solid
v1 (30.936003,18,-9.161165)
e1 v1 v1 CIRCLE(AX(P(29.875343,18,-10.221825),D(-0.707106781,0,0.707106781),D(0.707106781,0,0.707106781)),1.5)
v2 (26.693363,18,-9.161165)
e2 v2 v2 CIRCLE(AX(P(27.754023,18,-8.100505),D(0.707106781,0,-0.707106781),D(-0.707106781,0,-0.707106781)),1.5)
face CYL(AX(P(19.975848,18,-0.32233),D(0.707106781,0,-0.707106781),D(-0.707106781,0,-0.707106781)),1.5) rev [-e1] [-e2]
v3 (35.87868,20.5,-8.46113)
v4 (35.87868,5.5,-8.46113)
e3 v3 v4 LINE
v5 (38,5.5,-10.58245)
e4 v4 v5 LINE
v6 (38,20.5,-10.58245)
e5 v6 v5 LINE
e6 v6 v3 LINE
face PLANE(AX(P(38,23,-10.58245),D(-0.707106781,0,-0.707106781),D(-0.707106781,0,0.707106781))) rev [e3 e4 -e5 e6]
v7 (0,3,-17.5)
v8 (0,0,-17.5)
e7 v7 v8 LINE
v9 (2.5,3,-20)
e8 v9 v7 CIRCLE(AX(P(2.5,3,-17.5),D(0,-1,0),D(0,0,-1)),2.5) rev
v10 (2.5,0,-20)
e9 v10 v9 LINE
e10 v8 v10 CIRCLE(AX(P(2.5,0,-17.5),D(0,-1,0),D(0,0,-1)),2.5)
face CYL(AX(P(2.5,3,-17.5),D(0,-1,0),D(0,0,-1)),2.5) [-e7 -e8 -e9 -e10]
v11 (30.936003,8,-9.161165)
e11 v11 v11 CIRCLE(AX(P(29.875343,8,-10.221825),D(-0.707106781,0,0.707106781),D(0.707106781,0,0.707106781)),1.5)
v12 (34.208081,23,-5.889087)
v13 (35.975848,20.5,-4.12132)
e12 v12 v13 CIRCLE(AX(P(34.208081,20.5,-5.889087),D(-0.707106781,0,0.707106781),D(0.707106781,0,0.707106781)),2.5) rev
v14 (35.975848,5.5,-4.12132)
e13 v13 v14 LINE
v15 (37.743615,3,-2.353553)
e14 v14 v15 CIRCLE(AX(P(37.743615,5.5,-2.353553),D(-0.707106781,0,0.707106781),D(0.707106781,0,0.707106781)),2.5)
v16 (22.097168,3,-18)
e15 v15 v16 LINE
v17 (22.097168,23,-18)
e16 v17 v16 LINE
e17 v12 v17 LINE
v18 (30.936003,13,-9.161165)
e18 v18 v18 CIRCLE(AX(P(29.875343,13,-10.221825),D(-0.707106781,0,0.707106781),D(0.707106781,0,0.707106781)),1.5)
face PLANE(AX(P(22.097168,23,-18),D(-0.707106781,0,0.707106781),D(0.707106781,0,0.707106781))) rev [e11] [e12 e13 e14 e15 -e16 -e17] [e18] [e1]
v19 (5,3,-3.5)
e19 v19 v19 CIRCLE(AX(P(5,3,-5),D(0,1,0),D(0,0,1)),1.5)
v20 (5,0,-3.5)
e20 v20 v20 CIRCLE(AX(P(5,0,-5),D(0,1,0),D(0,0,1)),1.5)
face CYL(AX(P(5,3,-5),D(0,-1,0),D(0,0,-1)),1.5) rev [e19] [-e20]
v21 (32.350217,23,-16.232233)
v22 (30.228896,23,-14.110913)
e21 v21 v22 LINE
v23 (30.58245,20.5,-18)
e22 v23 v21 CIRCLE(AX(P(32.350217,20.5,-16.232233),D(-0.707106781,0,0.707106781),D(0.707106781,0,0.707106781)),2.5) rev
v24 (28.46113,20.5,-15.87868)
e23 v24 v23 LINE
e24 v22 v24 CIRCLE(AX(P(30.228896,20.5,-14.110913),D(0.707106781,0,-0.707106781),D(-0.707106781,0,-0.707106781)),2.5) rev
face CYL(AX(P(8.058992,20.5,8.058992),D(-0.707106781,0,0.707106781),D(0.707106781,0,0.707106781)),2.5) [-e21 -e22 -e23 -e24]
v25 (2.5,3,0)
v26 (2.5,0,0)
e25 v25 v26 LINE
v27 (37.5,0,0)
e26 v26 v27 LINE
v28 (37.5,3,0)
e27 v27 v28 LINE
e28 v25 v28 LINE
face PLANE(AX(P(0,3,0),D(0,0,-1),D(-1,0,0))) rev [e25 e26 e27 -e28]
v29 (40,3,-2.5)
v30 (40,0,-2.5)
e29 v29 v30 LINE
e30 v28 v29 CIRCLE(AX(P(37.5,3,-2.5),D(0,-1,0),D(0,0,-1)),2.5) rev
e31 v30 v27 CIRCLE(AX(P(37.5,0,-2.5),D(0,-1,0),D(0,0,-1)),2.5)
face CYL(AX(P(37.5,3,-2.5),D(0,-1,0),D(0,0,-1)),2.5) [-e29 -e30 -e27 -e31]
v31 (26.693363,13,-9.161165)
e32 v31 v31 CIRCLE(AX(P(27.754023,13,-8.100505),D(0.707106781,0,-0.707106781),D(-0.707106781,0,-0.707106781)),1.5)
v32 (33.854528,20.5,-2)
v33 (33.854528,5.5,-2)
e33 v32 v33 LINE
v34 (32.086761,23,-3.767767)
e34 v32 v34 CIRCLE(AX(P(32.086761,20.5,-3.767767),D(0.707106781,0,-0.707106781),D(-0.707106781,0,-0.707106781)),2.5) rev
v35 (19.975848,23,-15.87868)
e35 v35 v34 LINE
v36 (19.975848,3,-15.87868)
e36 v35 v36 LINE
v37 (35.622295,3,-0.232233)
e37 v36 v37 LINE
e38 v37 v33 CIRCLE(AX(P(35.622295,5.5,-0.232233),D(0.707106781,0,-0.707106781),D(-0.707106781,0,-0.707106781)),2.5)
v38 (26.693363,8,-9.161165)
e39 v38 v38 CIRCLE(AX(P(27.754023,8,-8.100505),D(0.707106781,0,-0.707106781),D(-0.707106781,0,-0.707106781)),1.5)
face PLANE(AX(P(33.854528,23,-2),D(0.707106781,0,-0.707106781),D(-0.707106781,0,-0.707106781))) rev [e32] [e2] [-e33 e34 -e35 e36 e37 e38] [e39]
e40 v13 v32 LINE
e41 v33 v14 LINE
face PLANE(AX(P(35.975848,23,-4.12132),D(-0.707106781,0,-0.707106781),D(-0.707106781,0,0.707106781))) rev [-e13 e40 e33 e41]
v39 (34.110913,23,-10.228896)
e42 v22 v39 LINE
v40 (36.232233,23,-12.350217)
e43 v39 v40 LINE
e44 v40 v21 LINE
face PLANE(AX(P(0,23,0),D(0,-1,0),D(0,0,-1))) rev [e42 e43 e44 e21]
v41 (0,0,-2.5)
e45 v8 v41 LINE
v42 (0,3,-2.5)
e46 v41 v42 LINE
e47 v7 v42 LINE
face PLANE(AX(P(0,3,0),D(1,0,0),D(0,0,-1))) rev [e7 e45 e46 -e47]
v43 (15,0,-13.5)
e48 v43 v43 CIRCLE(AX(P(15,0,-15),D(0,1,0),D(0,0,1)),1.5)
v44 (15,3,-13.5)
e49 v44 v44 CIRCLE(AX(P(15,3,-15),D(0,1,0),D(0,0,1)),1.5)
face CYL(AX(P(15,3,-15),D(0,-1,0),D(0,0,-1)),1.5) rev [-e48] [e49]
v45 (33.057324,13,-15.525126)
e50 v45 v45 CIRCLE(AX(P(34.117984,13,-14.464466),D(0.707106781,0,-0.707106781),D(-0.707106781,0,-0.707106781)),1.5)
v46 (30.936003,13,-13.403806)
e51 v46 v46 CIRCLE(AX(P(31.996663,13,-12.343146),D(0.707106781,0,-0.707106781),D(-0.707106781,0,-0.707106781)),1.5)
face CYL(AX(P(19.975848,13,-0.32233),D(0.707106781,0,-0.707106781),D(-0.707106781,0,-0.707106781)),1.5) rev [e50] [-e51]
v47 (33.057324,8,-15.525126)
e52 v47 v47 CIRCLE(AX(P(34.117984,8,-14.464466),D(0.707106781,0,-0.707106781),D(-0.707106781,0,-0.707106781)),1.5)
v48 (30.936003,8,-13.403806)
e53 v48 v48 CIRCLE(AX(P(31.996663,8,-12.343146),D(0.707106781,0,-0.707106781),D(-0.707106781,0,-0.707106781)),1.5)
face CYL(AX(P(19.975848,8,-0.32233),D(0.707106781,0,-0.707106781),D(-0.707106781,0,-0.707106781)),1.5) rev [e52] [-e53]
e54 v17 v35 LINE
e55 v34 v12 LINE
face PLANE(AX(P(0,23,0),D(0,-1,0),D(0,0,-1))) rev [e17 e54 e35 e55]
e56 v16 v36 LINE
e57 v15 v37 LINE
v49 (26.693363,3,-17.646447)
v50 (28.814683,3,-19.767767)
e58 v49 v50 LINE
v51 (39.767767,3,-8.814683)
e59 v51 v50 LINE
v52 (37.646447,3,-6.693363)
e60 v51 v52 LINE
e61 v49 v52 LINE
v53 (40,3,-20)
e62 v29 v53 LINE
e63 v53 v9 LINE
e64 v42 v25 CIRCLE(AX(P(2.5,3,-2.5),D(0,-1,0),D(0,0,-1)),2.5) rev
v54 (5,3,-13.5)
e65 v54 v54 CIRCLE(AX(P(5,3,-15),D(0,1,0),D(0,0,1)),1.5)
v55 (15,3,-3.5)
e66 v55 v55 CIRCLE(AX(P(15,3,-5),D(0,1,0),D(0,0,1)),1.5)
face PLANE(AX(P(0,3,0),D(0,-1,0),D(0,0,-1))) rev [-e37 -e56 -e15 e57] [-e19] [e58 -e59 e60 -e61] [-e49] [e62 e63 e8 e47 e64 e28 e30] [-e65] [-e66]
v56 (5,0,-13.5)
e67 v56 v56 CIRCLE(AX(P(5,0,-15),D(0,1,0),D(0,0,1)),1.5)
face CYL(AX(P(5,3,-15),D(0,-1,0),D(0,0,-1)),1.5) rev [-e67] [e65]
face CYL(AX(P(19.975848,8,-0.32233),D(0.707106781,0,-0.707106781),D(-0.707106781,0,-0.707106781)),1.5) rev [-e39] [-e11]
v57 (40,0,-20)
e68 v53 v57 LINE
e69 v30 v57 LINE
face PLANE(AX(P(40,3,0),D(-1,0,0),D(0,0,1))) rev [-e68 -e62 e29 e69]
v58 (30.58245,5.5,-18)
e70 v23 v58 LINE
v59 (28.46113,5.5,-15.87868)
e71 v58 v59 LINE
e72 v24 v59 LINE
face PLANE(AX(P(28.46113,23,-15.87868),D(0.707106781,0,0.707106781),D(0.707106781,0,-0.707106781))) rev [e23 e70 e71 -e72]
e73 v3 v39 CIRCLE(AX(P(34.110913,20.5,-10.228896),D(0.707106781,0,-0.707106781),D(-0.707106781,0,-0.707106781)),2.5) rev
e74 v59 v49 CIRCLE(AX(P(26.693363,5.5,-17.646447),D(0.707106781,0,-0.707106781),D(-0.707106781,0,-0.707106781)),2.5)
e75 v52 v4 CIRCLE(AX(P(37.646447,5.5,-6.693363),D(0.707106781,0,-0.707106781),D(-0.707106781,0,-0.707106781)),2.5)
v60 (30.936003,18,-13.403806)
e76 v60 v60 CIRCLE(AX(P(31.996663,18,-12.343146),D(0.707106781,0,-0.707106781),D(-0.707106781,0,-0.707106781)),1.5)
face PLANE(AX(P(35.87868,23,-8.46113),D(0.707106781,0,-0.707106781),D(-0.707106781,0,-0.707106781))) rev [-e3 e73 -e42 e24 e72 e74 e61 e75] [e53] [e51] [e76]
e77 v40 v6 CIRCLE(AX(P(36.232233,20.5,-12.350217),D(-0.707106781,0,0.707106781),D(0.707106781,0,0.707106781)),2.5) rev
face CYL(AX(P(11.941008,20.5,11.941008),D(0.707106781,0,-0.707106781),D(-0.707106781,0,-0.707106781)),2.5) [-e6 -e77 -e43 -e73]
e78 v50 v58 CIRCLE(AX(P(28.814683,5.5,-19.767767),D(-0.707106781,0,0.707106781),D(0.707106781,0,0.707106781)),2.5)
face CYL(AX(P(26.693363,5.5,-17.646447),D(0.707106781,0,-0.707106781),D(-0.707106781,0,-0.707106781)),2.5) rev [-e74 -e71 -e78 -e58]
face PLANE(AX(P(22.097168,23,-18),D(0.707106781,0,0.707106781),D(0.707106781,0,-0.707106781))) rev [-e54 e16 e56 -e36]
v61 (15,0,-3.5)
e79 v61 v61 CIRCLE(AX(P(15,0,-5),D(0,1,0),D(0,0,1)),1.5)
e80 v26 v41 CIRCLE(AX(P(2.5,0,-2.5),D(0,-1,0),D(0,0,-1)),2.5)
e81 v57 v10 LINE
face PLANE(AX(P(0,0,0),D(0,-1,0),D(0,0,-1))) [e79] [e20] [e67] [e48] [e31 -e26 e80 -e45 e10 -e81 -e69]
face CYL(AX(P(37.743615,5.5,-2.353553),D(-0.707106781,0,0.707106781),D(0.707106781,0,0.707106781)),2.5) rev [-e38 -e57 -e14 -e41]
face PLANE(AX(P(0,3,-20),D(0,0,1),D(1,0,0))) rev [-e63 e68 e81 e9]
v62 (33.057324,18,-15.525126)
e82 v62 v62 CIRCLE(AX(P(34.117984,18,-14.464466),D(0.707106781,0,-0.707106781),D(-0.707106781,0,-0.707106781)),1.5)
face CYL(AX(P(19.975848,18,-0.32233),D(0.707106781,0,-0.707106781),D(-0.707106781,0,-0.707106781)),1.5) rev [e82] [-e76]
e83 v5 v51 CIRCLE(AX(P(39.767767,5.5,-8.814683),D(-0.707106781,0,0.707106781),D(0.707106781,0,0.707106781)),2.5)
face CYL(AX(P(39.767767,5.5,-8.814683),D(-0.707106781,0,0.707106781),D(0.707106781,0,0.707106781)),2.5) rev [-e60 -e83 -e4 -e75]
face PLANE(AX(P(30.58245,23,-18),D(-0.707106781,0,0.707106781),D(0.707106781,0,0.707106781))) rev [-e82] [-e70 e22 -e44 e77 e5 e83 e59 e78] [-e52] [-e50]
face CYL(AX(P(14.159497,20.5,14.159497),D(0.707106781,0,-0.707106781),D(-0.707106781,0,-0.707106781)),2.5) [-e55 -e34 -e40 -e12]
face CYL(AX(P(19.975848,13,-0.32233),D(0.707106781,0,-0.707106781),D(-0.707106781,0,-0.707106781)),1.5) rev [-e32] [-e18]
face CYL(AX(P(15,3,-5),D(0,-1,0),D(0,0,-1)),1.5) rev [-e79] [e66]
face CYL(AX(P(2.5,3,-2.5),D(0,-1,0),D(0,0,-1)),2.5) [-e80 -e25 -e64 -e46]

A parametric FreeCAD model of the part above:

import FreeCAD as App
import Part
import Sketcher
from FreeCAD import Vector
Q = App.Units.Quantity


def edges_at(feature, points):
    """Names of the edges that pass closest to the given points."""
    edges = feature.Shape.Edges
    near = lambda p: min(range(len(edges)), key=lambda i: edges[i].distToShape(Part.Vertex(*p))[0])
    return sorted({f"Edge{near(p) + 1}" for p in points})

doc = App.newDocument("Part")
body = doc.addObject("PartDesign::Body", "Body")

sketch1 = doc.addObject("Sketcher::SketchObject", "Sketch")
body.addObject(sketch1)
sketch1.AttachmentSupport = (doc.XZ_Plane, [""])
sketch1.MapMode = "FlatFace"
sketch1.addGeometry(Part.LineSegment(Vector(0, -20, 0), Vector(0, 0, 0)), False)
sketch1.addGeometry(Part.LineSegment(Vector(0, 0, 0), Vector(40, 0, 0)), False)
sketch1.addGeometry(Part.LineSegment(Vector(40, 0, 0), Vector(40, -20, 0)), False)
sketch1.addGeometry(Part.LineSegment(Vector(40, -20, 0), Vector(0, -20, 0)), False)
sketch1.addGeometry(Part.Circle(Vector(5, -5, 0), Vector(0, 0, 1), 1.5), False)
sketch1.addGeometry(Part.Circle(Vector(15, -5, 0), Vector(0, 0, 1), 1.5), False)
sketch1.addGeometry(Part.Circle(Vector(5, -15, 0), Vector(0, 0, 1), 1.5), False)
sketch1.addGeometry(Part.Circle(Vector(15, -15, 0), Vector(0, 0, 1), 1.5), False)
sketch1.addConstraint(Sketcher.Constraint("Coincident", 0, 2, 1, 1))
sketch1.addConstraint(Sketcher.Constraint("Coincident", 1, 2, 2, 1))
sketch1.addConstraint(Sketcher.Constraint("Coincident", 2, 2, 3, 1))
sketch1.addConstraint(Sketcher.Constraint("Coincident", 3, 2, 0, 1))
sketch1.addConstraint(Sketcher.Constraint("Vertical", 0))
sketch1.addConstraint(Sketcher.Constraint("Horizontal", 1))
sketch1.addConstraint(Sketcher.Constraint("Vertical", 2))
sketch1.addConstraint(Sketcher.Constraint("Horizontal", 3))
sketch1.addConstraint(Sketcher.Constraint("Coincident", 0, 2, -1, 1))
sketch1.addConstraint(Sketcher.Constraint("Equal", 4, 5))
sketch1.addConstraint(Sketcher.Constraint("Equal", 5, 6))
sketch1.addConstraint(Sketcher.Constraint("Equal", 6, 7))
sketch1.addConstraint(Sketcher.Constraint("Horizontal", 4, 3, 5, 3))
sketch1.addConstraint(Sketcher.Constraint("Horizontal", 6, 3, 7, 3))
sketch1.addConstraint(Sketcher.Constraint("Vertical", 4, 3, 6, 3))
sketch1.addConstraint(Sketcher.Constraint("Vertical", 5, 3, 7, 3))
sketch1.addConstraint(Sketcher.Constraint("Diameter", 4, Q("3 mm")))
sketch1.addConstraint(Sketcher.Constraint("DistanceX", 1, 1, 1, 2, Q("40 mm")))
sketch1.addConstraint(Sketcher.Constraint("DistanceY", 0, 1, 0, 2, Q("20 mm")))
sketch1.addConstraint(Sketcher.Constraint("DistanceX", -1, 1, 4, 3, Q("5 mm")))
sketch1.addConstraint(Sketcher.Constraint("DistanceY", 4, 3, -1, 1, Q("5 mm")))
sketch1.addConstraint(Sketcher.Constraint("DistanceX", -1, 1, 5, 3, Q("15 mm")))
sketch1.addConstraint(Sketcher.Constraint("DistanceY", 6, 3, -1, 1, Q("15 mm")))
pad1 = doc.addObject("PartDesign::Pad", "Pad")
body.addObject(pad1)
pad1.Profile = sketch1
pad1.Length = 3
pad1.Reversed = True

sketch2 = doc.addObject("Sketcher::SketchObject", "Sketch001")
body.addObject(sketch2)
sketch2.AttachmentSupport = (doc.XZ_Plane, [""])
sketch2.MapMode = "FlatFace"
sketch2.AttachmentOffset = App.Placement(Vector(0, 0, -3), App.Rotation())
sketch2.addGeometry(Part.LineSegment(Vector(36, -4.1, 0), Vector(22.1, -18, 0)), False)
sketch2.addGeometry(Part.LineSegment(Vector(22.1, -18, 0), Vector(20, -15.9, 0)), False)
sketch2.addGeometry(Part.LineSegment(Vector(20, -15.9, 0), Vector(33.9, -2, 0)), False)
sketch2.addGeometry(Part.LineSegment(Vector(33.9, -2, 0), Vector(36, -4.1, 0)), False)
sketch2.addGeometry(Part.LineSegment(Vector(28.5, -15.9, 0), Vector(35.9, -8.5, 0)), False)
sketch2.addGeometry(Part.LineSegment(Vector(35.9, -8.5, 0), Vector(38, -10.6, 0)), False)
sketch2.addGeometry(Part.LineSegment(Vector(38, -10.6, 0), Vector(30.6, -18, 0)), False)
sketch2.addGeometry(Part.LineSegment(Vector(30.6, -18, 0), Vector(28.5, -15.9, 0)), False)
sketch2.addConstraint(Sketcher.Constraint("Coincident", 0, 2, 1, 1))
sketch2.addConstraint(Sketcher.Constraint("Coincident", 1, 2, 2, 1))
sketch2.addConstraint(Sketcher.Constraint("Coincident", 2, 2, 3, 1))
sketch2.addConstraint(Sketcher.Constraint("Coincident", 3, 2, 0, 1))
sketch2.addConstraint(Sketcher.Constraint("Coincident", 4, 2, 5, 1))
sketch2.addConstraint(Sketcher.Constraint("Coincident", 5, 2, 6, 1))
sketch2.addConstraint(Sketcher.Constraint("Coincident", 6, 2, 7, 1))
sketch2.addConstraint(Sketcher.Constraint("Coincident", 7, 2, 4, 1))
sketch2.addConstraint(Sketcher.Constraint("Perpendicular", 0, 1))
sketch2.addConstraint(Sketcher.Constraint("Perpendicular", 1, 2))
sketch2.addConstraint(Sketcher.Constraint("Perpendicular", 2, 3))
sketch2.addConstraint(Sketcher.Constraint("Perpendicular", 3, 4))
sketch2.addConstraint(Sketcher.Constraint("Perpendicular", 4, 5))
sketch2.addConstraint(Sketcher.Constraint("Perpendicular", 5, 6))
sketch2.addConstraint(Sketcher.Constraint("Perpendicular", 6, 7))
sketch2.addConstraint(Sketcher.Constraint("Horizontal", 0, 2, 6, 2))
sketch2.addConstraint(Sketcher.Constraint("Horizontal", 1, 2, 7, 2))
sketch2.addConstraint(Sketcher.Constraint("Angle", 0, Q("-135 deg")))
sketch2.addConstraint(Sketcher.Constraint("Distance", 1, Q("3 mm")))
sketch2.addConstraint(Sketcher.Constraint("DistanceY", 0, 2, -1, 1, Q("18 mm")))
sketch2.addConstraint(Sketcher.Constraint("DistanceY", 2, 2, -1, 1, Q("2 mm")))
sketch2.addConstraint(Sketcher.Constraint("DistanceX", -1, 1, 5, 2, Q("38 mm")))
sketch2.addConstraint(Sketcher.Constraint("Distance", 4, Q("10.49 mm")))
sketch2.addConstraint(Sketcher.Constraint("DistanceX", 1, 2, 6, 2, Q("10.606602 mm")))
pad2 = doc.addObject("PartDesign::Pad", "Pad001")
body.addObject(pad2)
pad2.Profile = sketch2
pad2.Length = 20
pad2.Reversed = True

sketch3 = doc.addObject("Sketcher::SketchObject", "Sketch002")
body.addObject(sketch3)
sketch3.Placement = App.Placement(Vector(24.291225, 0, -24.291225), App.Rotation(Vector(-0.707106781, 0, -0.707106781), Vector(0, 0.999999999, 0), Vector(0.707106781, 0, -0.707106781), "ZXY"))
sketch3.addGeometry(Part.Circle(Vector(-13.9, 18, 0), Vector(0, 0, 1), 1.5), False)
sketch3.addGeometry(Part.Circle(Vector(-13.9, 13, 0), Vector(0, 0, 1), 1.5), False)
sketch3.addGeometry(Part.Circle(Vector(-13.9, 8, 0), Vector(0, 0, 1), 1.5), False)
sketch3.addConstraint(Sketcher.Constraint("Equal", 0, 1))
sketch3.addConstraint(Sketcher.Constraint("Equal", 1, 2))
sketch3.addConstraint(Sketcher.Constraint("Vertical", 0, 3, 1, 3))
sketch3.addConstraint(Sketcher.Constraint("Vertical", 1, 3, 2, 3))
sketch3.addConstraint(Sketcher.Constraint("Diameter", 0, Q("3 mm")))
sketch3.addConstraint(Sketcher.Constraint("DistanceY", -1, 1, 0, 3, Q("18 mm")))
sketch3.addConstraint(Sketcher.Constraint("DistanceY", -1, 1, 1, 3, Q("13 mm")))
sketch3.addConstraint(Sketcher.Constraint("DistanceY", -1, 1, 2, 3, Q("8 mm")))
sketch3.addConstraint(Sketcher.Constraint("DistanceX", 0, 3, -1, 1, Q("13.897136 mm")))
pocket1 = doc.addObject("PartDesign::Pocket", "Pocket")
body.addObject(pocket1)
pocket1.Profile = sketch3
pocket1.Length = 20
doc.recompute()

fillet = doc.addObject("PartDesign::Fillet", "Fillet")
body.addObject(fillet)
fillet.Base = (pocket1, edges_at(pocket1, [
    (34.915, 3, -3.061),
    (34.915, 23, -3.061),
    (36.939, 3, -9.522),
    (29.522, 3, -16.939),
    (36.939, 23, -9.522),
    (29.522, 23, -16.939),
    (0, 1.5, -20),
    (40, 1.5, 0),
    (0, 1.5, 0),
]))
fillet.Radius = 2.5

doc.recompute()
